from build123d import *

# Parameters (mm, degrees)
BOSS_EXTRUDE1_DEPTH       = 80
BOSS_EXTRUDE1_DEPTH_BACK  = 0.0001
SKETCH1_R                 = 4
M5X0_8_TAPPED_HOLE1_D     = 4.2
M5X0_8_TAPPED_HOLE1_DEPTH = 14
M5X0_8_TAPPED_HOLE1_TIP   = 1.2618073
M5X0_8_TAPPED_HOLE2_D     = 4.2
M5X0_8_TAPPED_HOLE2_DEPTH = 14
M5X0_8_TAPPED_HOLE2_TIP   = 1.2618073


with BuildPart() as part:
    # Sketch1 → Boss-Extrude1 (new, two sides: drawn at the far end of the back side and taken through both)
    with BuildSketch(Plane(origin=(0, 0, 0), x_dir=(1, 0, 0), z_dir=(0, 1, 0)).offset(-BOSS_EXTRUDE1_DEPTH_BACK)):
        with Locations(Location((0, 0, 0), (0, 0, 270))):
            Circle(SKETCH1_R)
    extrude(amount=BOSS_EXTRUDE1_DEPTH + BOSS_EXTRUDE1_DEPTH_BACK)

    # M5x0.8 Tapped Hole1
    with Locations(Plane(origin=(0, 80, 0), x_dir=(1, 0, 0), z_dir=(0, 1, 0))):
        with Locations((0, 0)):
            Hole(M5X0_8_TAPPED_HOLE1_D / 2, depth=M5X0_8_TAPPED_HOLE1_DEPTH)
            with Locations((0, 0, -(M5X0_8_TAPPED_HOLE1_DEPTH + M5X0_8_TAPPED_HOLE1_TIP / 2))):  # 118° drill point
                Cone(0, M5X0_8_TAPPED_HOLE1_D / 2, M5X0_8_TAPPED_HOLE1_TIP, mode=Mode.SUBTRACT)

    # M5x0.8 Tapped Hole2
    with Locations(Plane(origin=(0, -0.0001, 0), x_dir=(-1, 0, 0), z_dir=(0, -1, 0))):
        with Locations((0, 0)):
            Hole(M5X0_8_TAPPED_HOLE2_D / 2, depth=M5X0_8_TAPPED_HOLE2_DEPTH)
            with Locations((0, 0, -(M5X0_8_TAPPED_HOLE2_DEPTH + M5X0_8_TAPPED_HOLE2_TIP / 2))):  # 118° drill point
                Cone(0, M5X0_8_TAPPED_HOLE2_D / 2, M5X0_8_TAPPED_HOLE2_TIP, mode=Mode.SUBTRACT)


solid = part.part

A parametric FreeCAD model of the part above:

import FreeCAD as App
import Part
import Sketcher

V = App.Vector

doc = App.newDocument("Part")
params = doc.addObject("Spreadsheet::Sheet", "Params")
for row, (alias, value) in enumerate([
    ("sketch1_diameter", "8 mm"),
    ("pad1_length", "80 mm"),
    ("pad1_length2", "0.0001 mm"),
    ("sketch2_diameter", "4.2 mm"),
    ("hole_diameter", "4.2 mm"),
    ("hole_depth", "14 mm"),
    ("sketch3_diameter", "4.2 mm"),
    ("hole2_diameter", "4.2 mm"),
    ("hole2_depth", "14 mm"),
], start=1):
    params.set(f"A{row}", alias)
    params.set(f"B{row}", "=" + value)
    params.setAlias(f"B{row}", alias)

body = doc.addObject("PartDesign::Body", "Body")

sketch1 = body.newObject("Sketcher::SketchObject", "Sketch")
sketch1.AttachmentSupport = (doc.getObject("XZ_Plane"), [""])
sketch1.MapMode = "FlatFace"
sketch1.addGeometry(Part.Circle(V(0, 0, 0), V(0, 0, 1), 4), False)
sketch1.addConstraint([
    Sketcher.Constraint("Coincident", 0, 3, -1, 1),
    Sketcher.Constraint("Diameter", 0, 8.0),
])
sketch1.setExpression("Constraints[1]", "Params.sketch1_diameter")
pad1 = body.newObject("PartDesign::Pad", "Pad")
pad1.Profile = sketch1
pad1.Type = "TwoLengths"
pad1.setExpression("Length", "Params.pad1_length")
pad1.setExpression("Length2", "Params.pad1_length2")
pad1.Reversed = True

sketch2 = body.newObject("Sketcher::SketchObject", "Sketch001")
sketch2.AttachmentSupport = (doc.getObject("XZ_Plane"), [""])
sketch2.MapMode = "FlatFace"
sketch2.AttachmentOffset = App.Placement(V(0, 0, -80), App.Rotation())
sketch2.addGeometry(Part.Circle(V(0, 0, 0), V(0, 0, 1), 2.1), False)
sketch2.addConstraint([
    Sketcher.Constraint("Coincident", 0, 3, -1, 1),
    Sketcher.Constraint("Diameter", 0, 4.2),
])
sketch2.setExpression("Constraints[1]", "Params.sketch2_diameter")
doc.recompute()
hole = body.newObject("PartDesign::Hole", "Hole")
hole.Profile = sketch2
hole.ThreadType = "None"
hole.setExpression("Diameter", "Params.hole_diameter")
hole.DepthType = "Dimension"
hole.setExpression("Depth", "Params.hole_depth")
hole.DrillPoint = "Angled"
hole.DrillPointAngle = 118
hole.Reversed = True

sketch3 = body.newObject("Sketcher::SketchObject", "Sketch002")
sketch3.AttachmentSupport = (doc.getObject("XZ_Plane"), [""])
sketch3.MapMode = "FlatFace"
sketch3.AttachmentOffset = App.Placement(V(0, 0, 0.0001), App.Rotation())
sketch3.addGeometry(Part.Circle(V(0, 0, 0), V(0, 0, 1), 2.1), False)
sketch3.addConstraint([
    Sketcher.Constraint("Coincident", 0, 3, -1, 1),
    Sketcher.Constraint("Diameter", 0, 4.2),
])
sketch3.setExpression("Constraints[1]", "Params.sketch3_diameter")
doc.recompute()
hole2 = body.newObject("PartDesign::Hole", "Hole001")
hole2.Profile = sketch3
hole2.ThreadType = "None"
hole2.setExpression("Diameter", "Params.hole2_diameter")
hole2.DepthType = "Dimension"
hole2.setExpression("Depth", "Params.hole2_depth")
hole2.DrillPoint = "Angled"
hole2.DrillPointAngle = 118

doc.recompute()
